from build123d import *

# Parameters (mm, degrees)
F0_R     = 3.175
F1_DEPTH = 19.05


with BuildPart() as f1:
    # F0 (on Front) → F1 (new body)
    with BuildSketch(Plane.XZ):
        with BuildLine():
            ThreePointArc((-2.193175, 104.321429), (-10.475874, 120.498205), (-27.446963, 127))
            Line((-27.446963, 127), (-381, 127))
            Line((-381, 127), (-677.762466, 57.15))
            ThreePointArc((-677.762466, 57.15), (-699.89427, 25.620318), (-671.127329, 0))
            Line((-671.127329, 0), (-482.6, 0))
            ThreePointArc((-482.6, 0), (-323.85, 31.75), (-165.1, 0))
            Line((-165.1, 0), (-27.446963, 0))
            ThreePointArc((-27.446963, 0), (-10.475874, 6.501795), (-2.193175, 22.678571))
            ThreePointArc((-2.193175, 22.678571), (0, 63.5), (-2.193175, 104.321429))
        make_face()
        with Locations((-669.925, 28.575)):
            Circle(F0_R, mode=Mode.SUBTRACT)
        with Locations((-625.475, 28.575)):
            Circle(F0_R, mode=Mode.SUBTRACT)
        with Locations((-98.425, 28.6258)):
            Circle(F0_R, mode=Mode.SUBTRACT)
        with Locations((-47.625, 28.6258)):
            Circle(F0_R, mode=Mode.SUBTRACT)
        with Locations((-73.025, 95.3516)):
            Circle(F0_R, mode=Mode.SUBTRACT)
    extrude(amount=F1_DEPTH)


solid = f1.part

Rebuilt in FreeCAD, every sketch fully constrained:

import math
import FreeCAD as App
import Part
import Sketcher
from FreeCAD import Vector
Q = App.Units.Quantity

doc = App.newDocument("Part")
params = doc.addObject("Spreadsheet::Sheet", "Params")
for row, (alias, value) in enumerate([
    ("sketch1_radius", "0.9999999 in"),
    ("sketch1_diameter", "0.25 in"),
    ("sketch1_radius2", "16.25 in"),
    ("pad1_length", "0.75 in"),
], start=1):
    params.set(f"A{row}", alias)
    params.set(f"B{row}", "=" + value)
    params.setAlias(f"B{row}", alias)

body = doc.addObject("PartDesign::Body", "Body")

# Sketch on XZ plane
sketch1 = body.newObject("Sketcher::SketchObject", "Sketch")
sketch1.AttachmentSupport = (doc.getObject("XZ_Plane"), [""])
sketch1.MapMode = "FlatFace"
sketch1.addGeometry([
    Part.ArcOfCircle(Part.Circle(Vector(-27.4, 101.6, 0), Vector(0, 0, 1), 25.4), math.radians(6), math.radians(90)),  # 0
    Part.LineSegment(Vector(-27.4, 127, 0), Vector(-381, 127, 0)),  # 1
    Part.LineSegment(Vector(-381, 127, 0), Vector(-677.8, 57.1, 0)),  # 2
    Part.ArcOfCircle(Part.Circle(Vector(-671.1, 29, 0), Vector(0, 0, 1), 29), math.radians(103), math.radians(270)),  # 3
    Part.LineSegment(Vector(-671.1, 0, 0), Vector(-482.6, 0, 0)),  # 4
    Part.ArcOfCircle(Part.Circle(Vector(-323.9, -381, 0), Vector(0, 0, 1), 412.8), math.radians(67), math.radians(113)),  # 5
    Part.LineSegment(Vector(-165.1, 0, 0), Vector(-27.4, 0, 0)),  # 6
    Part.ArcOfCircle(Part.Circle(Vector(-27.4, 25.4, 0), Vector(0, 0, 1), 25.4), math.radians(-90), math.radians(-6)),  # 7
    Part.ArcOfCircle(Part.Circle(Vector(-381, 63.5, 0), Vector(0, 0, 1), 381), math.radians(-6.15), math.radians(6.15)),  # 8
    Part.Circle(Vector(-669.9, 28.6, 0), Vector(0, 0, 1), 3.2),  # 9
    Part.Circle(Vector(-625.5, 28.6, 0), Vector(0, 0, 1), 3.2),  # 10
    Part.Circle(Vector(-98.4, 28.6, 0), Vector(0, 0, 1), 3.2),  # 11
    Part.Circle(Vector(-47.6, 28.6, 0), Vector(0, 0, 1), 3.2),  # 12
    Part.Circle(Vector(-73, 95.4, 0), Vector(0, 0, 1), 3.2),  # 13
], False)
sketch1.addConstraint([
    Sketcher.Constraint("Tangent", 0, 2, 1, 1),
    Sketcher.Constraint("Coincident", 1, 2, 2, 1),
    Sketcher.Constraint("Tangent", 2, 2, 3, 1),
    Sketcher.Constraint("Tangent", 3, 2, 4, 1),
    Sketcher.Constraint("Coincident", 4, 2, 5, 2),
    Sketcher.Constraint("Coincident", 5, 1, 6, 1),
    Sketcher.Constraint("Tangent", 6, 2, 7, 1),
    Sketcher.Constraint("Tangent", 7, 2, 8, 1),
    Sketcher.Constraint("Tangent", 8, 2, 0, 1),
    Sketcher.Constraint("Horizontal", 1),
    Sketcher.Constraint("Horizontal", 4),
    Sketcher.Constraint("Horizontal", 6),
    Sketcher.Constraint("Equal", 0, 7),
    Sketcher.Constraint("Equal", 9, 10),
    Sketcher.Constraint("Equal", 10, 11),
    Sketcher.Constraint("Equal", 11, 12),
    Sketcher.Constraint("Equal", 12, 13),
    Sketcher.Constraint("PointOnObject", 3, 2, -1),
    Sketcher.Constraint("PointOnObject", 5, 1, -1),
    Sketcher.Constraint("Horizontal", 9, 3, 10, 3),
    Sketcher.Constraint("Horizontal", 11, 3, 12, 3),
    Sketcher.Constraint("Vertical", 0, 3, 7, 3),
    Sketcher.Constraint("Radius", 0, Q("0.9999999 in")),
    Sketcher.Constraint("Diameter", 9, Q("0.25 in")),
    Sketcher.Constraint("Radius", 5, Q("16.25 in")),
    Sketcher.Constraint("DistanceY", -1, 1, 0, 3, Q("4.0000001 in")),
    Sketcher.Constraint("DistanceY", 5, 3, -1, 1, Q("15 in")),
    Sketcher.Constraint("DistanceX", 1, 2, -1, 1, Q("15 in")),
    Sketcher.Constraint("DistanceX", 4, 2, -1, 1, Q("19 in")),
    Sketcher.Constraint("DistanceX", 11, 3, 12, 3, Q("2 in")),
    Sketcher.Constraint("DistanceX", 11, 3, 13, 3, Q("1 in")),
    Sketcher.Constraint("DistanceY", -1, 1, 2, 2, Q("2.25 in")),
    Sketcher.Constraint("DistanceX", 9, 3, 10, 3, Q("1.75 in")),
    Sketcher.Constraint("DistanceX", 10, 3, 11, 3, Q("20.75 in")),
    Sketcher.Constraint("DistanceX", 9, 3, -1, 1, Q("26.375 in")),
    Sketcher.Constraint("DistanceY", -1, 1, 9, 3, Q("1.125 in")),
    Sketcher.Constraint("DistanceY", -1, 1, 11, 3, Q("1.127 in")),
    Sketcher.Constraint("DistanceY", -1, 1, 13, 3, Q("3.754 in")),
    Sketcher.Constraint("Radius", 8, Q("380.999939 mm")),
    Sketcher.Constraint("DistanceX", 4, 1, 4, 2, Q("188.527329 mm")),
    Sketcher.Constraint("DistanceX", 1, 2, 1, 1, Q("353.553037 mm")),
])
sketch1.setExpression("Constraints[22]", "Params.sketch1_radius")
sketch1.setExpression("Constraints[23]", "Params.sketch1_diameter")
sketch1.setExpression("Constraints[24]", "Params.sketch1_radius2")
pad1 = body.newObject("PartDesign::Pad", "Pad")
pad1.Profile = sketch1
pad1.setExpression("Length", "Params.pad1_length")

doc.recompute()
